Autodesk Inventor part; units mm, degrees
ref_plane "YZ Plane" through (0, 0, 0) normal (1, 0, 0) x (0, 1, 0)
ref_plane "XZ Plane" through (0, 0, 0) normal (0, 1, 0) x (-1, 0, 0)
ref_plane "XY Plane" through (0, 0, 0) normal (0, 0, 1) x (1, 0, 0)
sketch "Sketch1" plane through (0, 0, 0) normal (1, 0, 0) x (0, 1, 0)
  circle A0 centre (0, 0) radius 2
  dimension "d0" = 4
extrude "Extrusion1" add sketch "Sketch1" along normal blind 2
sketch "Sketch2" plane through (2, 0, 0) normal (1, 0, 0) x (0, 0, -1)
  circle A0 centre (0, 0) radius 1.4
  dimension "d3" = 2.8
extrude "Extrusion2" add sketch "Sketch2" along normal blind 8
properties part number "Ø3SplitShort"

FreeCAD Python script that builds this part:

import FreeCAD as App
import Part
import Sketcher

doc = App.newDocument("Part")
params = doc.addObject("Spreadsheet::Sheet", "Params")
for row, (alias, value) in enumerate([
    ("sketch1_diameter", "4 mm"),
    ("pad1_length", "2 mm"),
    ("sketch2_diameter", "2.8 mm"),
    ("pad2_length", "8 mm"),
], start=1):
    params.set(f"A{row}", alias)
    params.set(f"B{row}", "=" + value)
    params.setAlias(f"B{row}", alias)

body = doc.addObject("PartDesign::Body", "Body")

sketch1 = body.newObject("Sketcher::SketchObject", "Sketch")
sketch1.AttachmentSupport = (doc.getObject("YZ_Plane"), [""])
sketch1.MapMode = "FlatFace"
sketch1.addGeometry(Part.Circle(App.Vector(0, 0, 0), App.Vector(0, 0, 1), 2), False)
sketch1.addConstraint([
    Sketcher.Constraint("Coincident", 0, 3, -1, 1),
    Sketcher.Constraint("Diameter", 0, 4.0),
])
sketch1.setExpression("Constraints[1]", "Params.sketch1_diameter")
pad1 = body.newObject("PartDesign::Pad", "Pad")
pad1.Profile = sketch1
pad1.setExpression("Length", "Params.pad1_length")

sketch2 = body.newObject("Sketcher::SketchObject", "Sketch001")
sketch2.AttachmentSupport = (doc.getObject("YZ_Plane"), [""])
sketch2.MapMode = "FlatFace"
sketch2.AttachmentOffset = App.Placement(App.Vector(0, 0, 2), App.Rotation())
sketch2.addGeometry(Part.Circle(App.Vector(0, 0, 0), App.Vector(0, 0, 1), 1.4), False)
sketch2.addConstraint([
    Sketcher.Constraint("Coincident", 0, 3, -1, 1),
    Sketcher.Constraint("Diameter", 0, 2.8),
])
sketch2.setExpression("Constraints[1]", "Params.sketch2_diameter")
pad2 = body.newObject("PartDesign::Pad", "Pad001")
pad2.Profile = sketch2
pad2.setExpression("Length", "Params.pad2_length")

doc.recompute()
